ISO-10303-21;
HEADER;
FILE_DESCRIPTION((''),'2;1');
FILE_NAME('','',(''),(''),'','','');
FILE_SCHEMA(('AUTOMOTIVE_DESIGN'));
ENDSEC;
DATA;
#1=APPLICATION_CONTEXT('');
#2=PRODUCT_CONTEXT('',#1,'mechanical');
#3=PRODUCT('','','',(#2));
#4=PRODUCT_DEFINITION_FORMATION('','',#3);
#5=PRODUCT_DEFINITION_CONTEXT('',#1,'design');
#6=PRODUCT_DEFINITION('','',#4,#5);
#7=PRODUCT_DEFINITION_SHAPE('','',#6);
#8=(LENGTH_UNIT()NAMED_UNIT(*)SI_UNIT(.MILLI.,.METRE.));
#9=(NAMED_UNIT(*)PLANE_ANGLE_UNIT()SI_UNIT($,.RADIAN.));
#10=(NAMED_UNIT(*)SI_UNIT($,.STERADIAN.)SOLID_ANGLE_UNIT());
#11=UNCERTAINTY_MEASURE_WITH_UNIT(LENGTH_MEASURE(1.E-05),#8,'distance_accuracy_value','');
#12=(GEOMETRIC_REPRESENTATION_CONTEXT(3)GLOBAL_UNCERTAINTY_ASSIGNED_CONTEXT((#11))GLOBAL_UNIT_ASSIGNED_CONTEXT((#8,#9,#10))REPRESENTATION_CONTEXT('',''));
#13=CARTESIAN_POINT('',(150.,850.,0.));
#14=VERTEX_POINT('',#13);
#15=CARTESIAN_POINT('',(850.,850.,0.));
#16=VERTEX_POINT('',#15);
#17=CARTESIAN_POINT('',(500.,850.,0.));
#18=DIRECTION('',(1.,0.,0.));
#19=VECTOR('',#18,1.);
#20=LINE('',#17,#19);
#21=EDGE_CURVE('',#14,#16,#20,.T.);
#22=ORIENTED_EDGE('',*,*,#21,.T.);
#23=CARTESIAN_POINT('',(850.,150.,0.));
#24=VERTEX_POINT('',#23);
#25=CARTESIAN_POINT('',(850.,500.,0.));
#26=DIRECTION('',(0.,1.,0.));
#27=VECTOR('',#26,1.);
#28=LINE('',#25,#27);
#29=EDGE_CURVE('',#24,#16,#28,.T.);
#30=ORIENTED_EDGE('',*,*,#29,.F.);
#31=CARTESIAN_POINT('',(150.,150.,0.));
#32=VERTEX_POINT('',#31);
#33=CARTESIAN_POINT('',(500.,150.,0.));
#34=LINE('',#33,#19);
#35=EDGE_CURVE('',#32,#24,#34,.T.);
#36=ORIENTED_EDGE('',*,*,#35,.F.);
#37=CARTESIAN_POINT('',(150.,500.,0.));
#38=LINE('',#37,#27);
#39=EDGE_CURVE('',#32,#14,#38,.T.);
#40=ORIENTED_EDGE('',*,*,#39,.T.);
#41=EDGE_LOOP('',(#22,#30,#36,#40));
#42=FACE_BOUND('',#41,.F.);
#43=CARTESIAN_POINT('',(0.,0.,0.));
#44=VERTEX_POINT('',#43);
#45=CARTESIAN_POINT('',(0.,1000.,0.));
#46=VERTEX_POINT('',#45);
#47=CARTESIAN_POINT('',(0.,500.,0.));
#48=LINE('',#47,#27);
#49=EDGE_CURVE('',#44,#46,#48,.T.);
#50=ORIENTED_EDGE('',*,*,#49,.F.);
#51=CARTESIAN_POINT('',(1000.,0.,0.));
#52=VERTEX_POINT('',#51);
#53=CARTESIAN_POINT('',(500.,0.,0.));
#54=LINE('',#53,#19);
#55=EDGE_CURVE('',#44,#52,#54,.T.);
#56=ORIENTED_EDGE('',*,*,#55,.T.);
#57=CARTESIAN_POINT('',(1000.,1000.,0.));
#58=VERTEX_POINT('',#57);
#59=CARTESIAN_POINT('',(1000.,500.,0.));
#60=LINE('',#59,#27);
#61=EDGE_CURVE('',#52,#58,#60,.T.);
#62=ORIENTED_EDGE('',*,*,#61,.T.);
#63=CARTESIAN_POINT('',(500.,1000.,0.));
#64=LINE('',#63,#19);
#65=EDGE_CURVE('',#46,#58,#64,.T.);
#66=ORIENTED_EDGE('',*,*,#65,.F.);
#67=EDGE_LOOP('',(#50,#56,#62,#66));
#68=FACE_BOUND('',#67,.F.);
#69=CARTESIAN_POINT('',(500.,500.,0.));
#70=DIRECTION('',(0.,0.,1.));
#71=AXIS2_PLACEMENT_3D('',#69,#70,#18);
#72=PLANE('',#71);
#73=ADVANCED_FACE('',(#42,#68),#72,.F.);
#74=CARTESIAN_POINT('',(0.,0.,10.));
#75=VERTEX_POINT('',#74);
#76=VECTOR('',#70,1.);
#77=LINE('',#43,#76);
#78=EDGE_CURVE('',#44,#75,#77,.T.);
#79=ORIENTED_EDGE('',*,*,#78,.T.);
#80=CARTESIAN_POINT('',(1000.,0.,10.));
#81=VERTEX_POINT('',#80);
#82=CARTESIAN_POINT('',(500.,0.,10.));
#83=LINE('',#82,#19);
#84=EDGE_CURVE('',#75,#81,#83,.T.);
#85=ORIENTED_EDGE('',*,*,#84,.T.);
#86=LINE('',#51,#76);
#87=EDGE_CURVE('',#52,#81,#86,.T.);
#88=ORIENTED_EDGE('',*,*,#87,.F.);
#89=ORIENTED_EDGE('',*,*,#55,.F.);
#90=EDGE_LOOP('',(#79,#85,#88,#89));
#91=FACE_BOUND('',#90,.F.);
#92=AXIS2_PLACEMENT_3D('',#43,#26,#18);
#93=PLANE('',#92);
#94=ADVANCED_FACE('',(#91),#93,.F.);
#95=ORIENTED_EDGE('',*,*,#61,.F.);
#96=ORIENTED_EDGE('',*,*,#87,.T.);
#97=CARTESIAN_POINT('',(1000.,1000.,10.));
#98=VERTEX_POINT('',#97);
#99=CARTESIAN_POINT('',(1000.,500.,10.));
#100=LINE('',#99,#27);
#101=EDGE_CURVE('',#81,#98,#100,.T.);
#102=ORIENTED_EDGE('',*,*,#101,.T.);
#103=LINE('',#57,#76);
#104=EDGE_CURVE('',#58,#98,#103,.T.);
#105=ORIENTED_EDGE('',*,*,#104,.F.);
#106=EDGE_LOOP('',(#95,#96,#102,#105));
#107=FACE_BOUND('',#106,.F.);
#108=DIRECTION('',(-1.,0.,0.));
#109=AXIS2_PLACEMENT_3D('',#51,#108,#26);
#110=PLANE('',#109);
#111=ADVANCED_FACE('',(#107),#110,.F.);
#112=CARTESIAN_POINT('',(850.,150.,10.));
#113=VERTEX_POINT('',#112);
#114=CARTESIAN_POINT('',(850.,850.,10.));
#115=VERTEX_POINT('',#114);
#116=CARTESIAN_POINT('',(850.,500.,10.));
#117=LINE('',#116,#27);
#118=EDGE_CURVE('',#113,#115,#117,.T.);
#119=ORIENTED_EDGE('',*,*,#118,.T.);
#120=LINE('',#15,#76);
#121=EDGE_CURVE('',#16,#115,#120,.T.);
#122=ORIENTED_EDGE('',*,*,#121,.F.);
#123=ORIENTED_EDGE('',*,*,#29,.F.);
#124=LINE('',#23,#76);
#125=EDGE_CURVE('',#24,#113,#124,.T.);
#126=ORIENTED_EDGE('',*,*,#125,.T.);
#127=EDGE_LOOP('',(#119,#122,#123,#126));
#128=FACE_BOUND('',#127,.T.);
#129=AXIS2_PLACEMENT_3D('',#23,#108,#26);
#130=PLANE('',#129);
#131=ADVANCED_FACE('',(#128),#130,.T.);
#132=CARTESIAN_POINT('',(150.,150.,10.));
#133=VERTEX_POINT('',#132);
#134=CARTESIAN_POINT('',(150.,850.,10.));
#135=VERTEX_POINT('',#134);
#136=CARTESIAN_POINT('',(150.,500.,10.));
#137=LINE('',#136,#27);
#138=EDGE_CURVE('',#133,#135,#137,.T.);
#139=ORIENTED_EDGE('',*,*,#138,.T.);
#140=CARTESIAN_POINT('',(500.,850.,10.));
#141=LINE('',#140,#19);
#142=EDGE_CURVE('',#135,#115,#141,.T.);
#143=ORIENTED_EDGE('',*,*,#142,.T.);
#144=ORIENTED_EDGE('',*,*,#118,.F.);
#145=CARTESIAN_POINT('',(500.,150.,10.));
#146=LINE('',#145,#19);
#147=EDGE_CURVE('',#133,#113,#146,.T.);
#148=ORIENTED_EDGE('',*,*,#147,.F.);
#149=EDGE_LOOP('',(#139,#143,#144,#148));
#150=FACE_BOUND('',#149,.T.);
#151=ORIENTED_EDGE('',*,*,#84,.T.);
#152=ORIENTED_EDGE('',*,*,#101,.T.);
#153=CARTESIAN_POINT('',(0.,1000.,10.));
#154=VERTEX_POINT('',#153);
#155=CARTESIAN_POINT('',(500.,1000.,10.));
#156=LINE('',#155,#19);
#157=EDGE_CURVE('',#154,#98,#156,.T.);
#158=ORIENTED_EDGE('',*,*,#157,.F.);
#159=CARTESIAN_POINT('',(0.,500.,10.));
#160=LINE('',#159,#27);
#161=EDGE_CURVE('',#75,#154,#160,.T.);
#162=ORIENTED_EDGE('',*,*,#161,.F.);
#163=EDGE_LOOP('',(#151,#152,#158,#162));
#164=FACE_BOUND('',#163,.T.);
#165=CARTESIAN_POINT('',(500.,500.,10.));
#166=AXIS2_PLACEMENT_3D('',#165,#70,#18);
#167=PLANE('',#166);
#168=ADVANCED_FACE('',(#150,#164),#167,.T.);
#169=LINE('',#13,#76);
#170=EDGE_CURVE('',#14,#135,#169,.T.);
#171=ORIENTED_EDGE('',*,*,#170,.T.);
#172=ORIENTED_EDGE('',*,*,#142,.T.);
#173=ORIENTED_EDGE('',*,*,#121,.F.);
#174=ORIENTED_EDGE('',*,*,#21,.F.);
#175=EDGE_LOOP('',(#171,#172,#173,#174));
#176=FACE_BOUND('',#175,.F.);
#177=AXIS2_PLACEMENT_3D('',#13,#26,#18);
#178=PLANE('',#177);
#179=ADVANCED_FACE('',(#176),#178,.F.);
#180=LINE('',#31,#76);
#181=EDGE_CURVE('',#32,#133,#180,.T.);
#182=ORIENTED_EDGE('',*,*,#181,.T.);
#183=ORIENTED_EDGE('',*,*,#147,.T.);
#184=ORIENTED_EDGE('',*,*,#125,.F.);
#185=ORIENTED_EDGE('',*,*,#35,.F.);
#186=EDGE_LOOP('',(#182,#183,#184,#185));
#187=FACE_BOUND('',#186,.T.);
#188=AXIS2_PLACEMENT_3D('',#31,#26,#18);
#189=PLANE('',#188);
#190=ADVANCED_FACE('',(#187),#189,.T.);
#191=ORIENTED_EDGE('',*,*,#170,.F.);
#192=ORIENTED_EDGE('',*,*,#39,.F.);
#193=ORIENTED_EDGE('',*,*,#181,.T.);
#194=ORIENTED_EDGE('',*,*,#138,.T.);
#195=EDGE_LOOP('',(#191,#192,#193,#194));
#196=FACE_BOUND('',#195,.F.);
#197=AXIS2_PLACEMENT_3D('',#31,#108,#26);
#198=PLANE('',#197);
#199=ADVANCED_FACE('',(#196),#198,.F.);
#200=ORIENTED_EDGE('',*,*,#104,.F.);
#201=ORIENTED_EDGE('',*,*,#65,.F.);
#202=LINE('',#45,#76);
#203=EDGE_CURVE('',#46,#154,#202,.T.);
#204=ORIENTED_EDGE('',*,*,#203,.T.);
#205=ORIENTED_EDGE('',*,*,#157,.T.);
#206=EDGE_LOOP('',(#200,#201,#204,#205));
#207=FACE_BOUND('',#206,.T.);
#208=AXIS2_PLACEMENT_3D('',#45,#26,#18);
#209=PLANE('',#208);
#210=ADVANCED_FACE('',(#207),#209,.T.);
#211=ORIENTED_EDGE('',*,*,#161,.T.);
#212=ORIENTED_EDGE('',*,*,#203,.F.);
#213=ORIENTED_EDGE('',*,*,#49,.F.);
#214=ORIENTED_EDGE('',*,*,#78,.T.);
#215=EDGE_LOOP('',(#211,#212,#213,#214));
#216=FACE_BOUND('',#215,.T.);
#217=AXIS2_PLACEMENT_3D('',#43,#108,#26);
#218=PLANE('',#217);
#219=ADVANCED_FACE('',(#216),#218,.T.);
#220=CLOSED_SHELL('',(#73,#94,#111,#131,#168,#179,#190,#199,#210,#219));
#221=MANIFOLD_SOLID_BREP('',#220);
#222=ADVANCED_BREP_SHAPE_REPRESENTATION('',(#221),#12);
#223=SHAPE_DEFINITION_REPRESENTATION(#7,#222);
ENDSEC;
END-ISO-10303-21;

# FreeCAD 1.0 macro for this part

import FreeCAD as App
import Part
import Sketcher

V = App.Vector
Q = App.Units.Quantity

doc = App.newDocument("Part")
body = doc.addObject("PartDesign::Body", "Body")

sketch1 = body.newObject("Sketcher::SketchObject", "Sketch")
sketch1.AttachmentSupport = (doc.getObject("XY_Plane"), [""])
sketch1.MapMode = "FlatFace"
sketch1.addGeometry([
    Part.LineSegment(V(150, 850, 0), V(150, 150, 0)),
    Part.LineSegment(V(150, 150, 0), V(850, 150, 0)),
    Part.LineSegment(V(850, 150, 0), V(850, 850, 0)),
    Part.LineSegment(V(850, 850, 0), V(150, 850, 0)),
], False)
sketch1.addConstraint([
    Sketcher.Constraint("Coincident", 0, 2, 1, 1),
    Sketcher.Constraint("Coincident", 1, 2, 2, 1),
    Sketcher.Constraint("Coincident", 2, 2, 3, 1),
    Sketcher.Constraint("Coincident", 3, 2, 0, 1),
    Sketcher.Constraint("Vertical", 0),
    Sketcher.Constraint("Horizontal", 1),
    Sketcher.Constraint("Vertical", 2),
    Sketcher.Constraint("Horizontal", 3),
    Sketcher.Constraint("Equal", 3, 0),
    Sketcher.Constraint("DistanceX", 1, 1, 1, 2, Q("700 mm")),
    Sketcher.Constraint("DistanceX", -1, 1, 0, 2, Q("150 mm")),
    Sketcher.Constraint("DistanceY", -1, 1, 0, 2, Q("150 mm")),
])
pad1 = body.newObject("PartDesign::Pad", "Pad")
pad1.Profile = sketch1
pad1.Length = 10
body2 = doc.addObject("PartDesign::Body", "Body001")

sketch2 = body2.newObject("Sketcher::SketchObject", "Sketch001")
sketch2.AttachmentSupport = (doc.getObject("XY_Plane001"), [""])
sketch2.MapMode = "FlatFace"
sketch2.addGeometry([
    Part.LineSegment(V(0, 1000, 0), V(0, 0, 0)),
    Part.LineSegment(V(0, 0, 0), V(1000, 0, 0)),
    Part.LineSegment(V(1000, 0, 0), V(1000, 1000, 0)),
    Part.LineSegment(V(1000, 1000, 0), V(0, 1000, 0)),
], False)
sketch2.addConstraint([
    Sketcher.Constraint("Coincident", 0, 2, 1, 1),
    Sketcher.Constraint("Coincident", 1, 2, 2, 1),
    Sketcher.Constraint("Coincident", 2, 2, 3, 1),
    Sketcher.Constraint("Coincident", 3, 2, 0, 1),
    Sketcher.Constraint("Vertical", 0),
    Sketcher.Constraint("Horizontal", 1),
    Sketcher.Constraint("Vertical", 2),
    Sketcher.Constraint("Horizontal", 3),
    Sketcher.Constraint("Coincident", 0, 2, -1, 1),
    Sketcher.Constraint("Equal", 3, 0),
    Sketcher.Constraint("DistanceX", 1, 1, 1, 2, Q("1000 mm")),
])
pad2 = body2.newObject("PartDesign::Pad", "Pad001")
pad2.Profile = sketch2
pad2.Length = 10
doc.recompute()

boolean = body2.newObject("PartDesign::Boolean", "Boolean")
boolean.Type = "Cut"
boolean.addObjects([body])

doc.recompute()
